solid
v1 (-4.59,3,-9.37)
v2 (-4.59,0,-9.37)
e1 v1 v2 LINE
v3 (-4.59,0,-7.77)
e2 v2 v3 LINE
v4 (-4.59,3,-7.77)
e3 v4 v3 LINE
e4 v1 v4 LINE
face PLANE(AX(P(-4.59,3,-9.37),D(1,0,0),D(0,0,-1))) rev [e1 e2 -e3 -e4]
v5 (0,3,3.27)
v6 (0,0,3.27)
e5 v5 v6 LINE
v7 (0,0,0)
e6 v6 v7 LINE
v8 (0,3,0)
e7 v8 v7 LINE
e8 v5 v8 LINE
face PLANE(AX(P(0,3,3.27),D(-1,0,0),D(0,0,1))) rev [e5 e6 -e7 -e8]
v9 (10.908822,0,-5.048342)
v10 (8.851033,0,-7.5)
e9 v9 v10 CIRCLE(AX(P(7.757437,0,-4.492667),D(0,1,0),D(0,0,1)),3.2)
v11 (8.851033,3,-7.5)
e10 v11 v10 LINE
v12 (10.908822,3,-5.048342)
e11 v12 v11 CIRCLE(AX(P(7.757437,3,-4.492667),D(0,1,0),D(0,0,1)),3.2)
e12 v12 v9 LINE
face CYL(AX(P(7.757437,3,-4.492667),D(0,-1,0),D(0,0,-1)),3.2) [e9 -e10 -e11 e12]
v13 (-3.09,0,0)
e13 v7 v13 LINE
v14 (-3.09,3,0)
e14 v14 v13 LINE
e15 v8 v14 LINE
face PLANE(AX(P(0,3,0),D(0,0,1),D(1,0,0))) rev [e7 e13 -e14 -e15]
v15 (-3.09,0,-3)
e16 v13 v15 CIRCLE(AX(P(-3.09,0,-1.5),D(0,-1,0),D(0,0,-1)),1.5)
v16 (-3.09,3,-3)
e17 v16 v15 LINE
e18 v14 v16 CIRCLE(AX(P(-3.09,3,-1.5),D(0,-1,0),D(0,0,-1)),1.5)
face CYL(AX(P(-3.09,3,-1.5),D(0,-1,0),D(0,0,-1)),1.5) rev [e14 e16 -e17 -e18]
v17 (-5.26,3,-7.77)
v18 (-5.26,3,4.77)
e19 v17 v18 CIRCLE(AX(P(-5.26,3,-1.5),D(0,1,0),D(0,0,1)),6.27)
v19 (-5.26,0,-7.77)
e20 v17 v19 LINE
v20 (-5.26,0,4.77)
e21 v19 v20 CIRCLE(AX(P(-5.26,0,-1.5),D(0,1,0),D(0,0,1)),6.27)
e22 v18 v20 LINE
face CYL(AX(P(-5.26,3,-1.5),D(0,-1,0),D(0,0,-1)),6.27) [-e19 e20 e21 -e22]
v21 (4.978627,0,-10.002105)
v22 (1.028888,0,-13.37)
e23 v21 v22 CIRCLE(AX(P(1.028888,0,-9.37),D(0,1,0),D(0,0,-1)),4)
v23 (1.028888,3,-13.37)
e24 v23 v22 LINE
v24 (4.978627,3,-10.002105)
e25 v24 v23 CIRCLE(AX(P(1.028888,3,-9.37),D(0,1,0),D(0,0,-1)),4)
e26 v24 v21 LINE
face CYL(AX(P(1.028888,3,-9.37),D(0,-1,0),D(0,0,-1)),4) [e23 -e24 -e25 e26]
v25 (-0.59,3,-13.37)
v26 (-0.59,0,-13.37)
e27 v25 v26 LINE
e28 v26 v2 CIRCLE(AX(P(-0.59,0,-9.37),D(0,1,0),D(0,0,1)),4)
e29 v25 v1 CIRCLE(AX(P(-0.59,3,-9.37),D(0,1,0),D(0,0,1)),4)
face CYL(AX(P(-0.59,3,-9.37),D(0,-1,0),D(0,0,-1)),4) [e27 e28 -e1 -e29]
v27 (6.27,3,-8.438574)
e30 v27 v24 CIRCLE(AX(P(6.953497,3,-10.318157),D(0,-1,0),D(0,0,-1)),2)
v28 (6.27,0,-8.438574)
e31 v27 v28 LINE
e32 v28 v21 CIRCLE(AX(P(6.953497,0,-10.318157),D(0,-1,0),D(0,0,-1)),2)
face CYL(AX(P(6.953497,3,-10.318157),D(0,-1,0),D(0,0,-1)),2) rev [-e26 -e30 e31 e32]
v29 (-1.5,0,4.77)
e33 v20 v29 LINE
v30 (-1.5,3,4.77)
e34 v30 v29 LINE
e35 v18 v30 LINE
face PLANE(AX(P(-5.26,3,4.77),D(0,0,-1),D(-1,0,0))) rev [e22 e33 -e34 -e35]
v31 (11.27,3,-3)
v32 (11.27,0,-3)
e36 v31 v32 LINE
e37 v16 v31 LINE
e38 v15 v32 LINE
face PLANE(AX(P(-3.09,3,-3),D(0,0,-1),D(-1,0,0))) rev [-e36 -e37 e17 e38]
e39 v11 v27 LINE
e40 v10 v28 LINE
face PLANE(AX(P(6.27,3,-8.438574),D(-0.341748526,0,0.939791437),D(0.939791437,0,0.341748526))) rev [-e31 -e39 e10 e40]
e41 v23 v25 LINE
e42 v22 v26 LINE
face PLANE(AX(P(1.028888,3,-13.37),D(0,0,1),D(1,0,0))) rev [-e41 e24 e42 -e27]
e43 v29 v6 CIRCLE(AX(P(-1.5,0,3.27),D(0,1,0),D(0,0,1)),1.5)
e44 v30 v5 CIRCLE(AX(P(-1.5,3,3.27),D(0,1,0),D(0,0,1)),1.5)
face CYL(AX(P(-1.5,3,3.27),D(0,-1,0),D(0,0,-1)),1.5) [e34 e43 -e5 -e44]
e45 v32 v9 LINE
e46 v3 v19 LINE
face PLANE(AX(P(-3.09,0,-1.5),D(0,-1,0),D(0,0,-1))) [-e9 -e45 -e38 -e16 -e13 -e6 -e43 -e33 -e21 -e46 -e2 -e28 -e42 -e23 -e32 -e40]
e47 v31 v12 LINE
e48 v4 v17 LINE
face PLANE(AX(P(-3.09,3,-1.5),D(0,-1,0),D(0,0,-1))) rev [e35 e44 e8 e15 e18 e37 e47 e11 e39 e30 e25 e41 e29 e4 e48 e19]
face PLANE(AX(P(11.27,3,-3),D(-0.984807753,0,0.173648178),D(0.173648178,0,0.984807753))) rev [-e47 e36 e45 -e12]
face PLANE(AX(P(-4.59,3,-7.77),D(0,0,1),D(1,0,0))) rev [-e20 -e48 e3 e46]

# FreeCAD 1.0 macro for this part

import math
import FreeCAD as App
import Part
import Sketcher
from FreeCAD import Vector
Q = App.Units.Quantity

doc = App.newDocument("Part")
body = doc.addObject("PartDesign::Body", "Body")

sketch1 = body.newObject("Sketcher::SketchObject", "Sketch")
sketch1.AttachmentSupport = (doc.getObject("XZ_Plane"), [""])
sketch1.MapMode = "FlatFace"
sketch1.addGeometry([
    Part.LineSegment(Vector(0, 0, 0), Vector(-3.1, 0, 0)),
    Part.ArcOfCircle(Part.Circle(Vector(-3.1, -1.5, 0), Vector(0, 0, 1), 1.5), math.radians(90), math.radians(270)),
    Part.LineSegment(Vector(-3.1, -3, 0), Vector(11.3, -3, 0)),
    Part.LineSegment(Vector(11.3, -3, 0), Vector(10.9, -5, 0)),
    Part.ArcOfCircle(Part.Circle(Vector(7.8, -4.5, 0), Vector(0, 0, 1), 3.2), math.radians(-70), math.radians(-10)),
    Part.LineSegment(Vector(8.9, -7.5, 0), Vector(6.3, -8.4, 0)),
    Part.ArcOfCircle(Part.Circle(Vector(7, -10.3, 0), Vector(0, 0, 1), 2), math.radians(110), math.radians(171)),
    Part.ArcOfCircle(Part.Circle(Vector(1, -9.4, 0), Vector(0, 0, 1), 4), math.radians(-90), math.radians(-9)),
    Part.LineSegment(Vector(1, -13.4, 0), Vector(-0.6, -13.4, 0)),
    Part.ArcOfCircle(Part.Circle(Vector(-0.6, -9.4, 0), Vector(0, 0, 1), 4), math.radians(180), math.radians(270)),
    Part.LineSegment(Vector(-4.6, -9.4, 0), Vector(-4.6, -7.8, 0)),
    Part.LineSegment(Vector(-4.6, -7.8, 0), Vector(-5.3, -7.8, 0)),
    Part.ArcOfCircle(Part.Circle(Vector(-5.3, -1.5, 0), Vector(0, 0, 1), 6.3), math.radians(90), math.radians(270)),
    Part.LineSegment(Vector(-5.3, 4.8, 0), Vector(-1.5, 4.8, 0)),
    Part.ArcOfCircle(Part.Circle(Vector(-1.5, 3.3, 0), Vector(0, 0, 1), 1.5), math.radians(0), math.radians(90)),
    Part.LineSegment(Vector(0, 3.3, 0), Vector(0, 0, 0)),
], False)
sketch1.addConstraint([
    Sketcher.Constraint("Tangent", 0, 2, 1, 1),
    Sketcher.Constraint("Tangent", 1, 2, 2, 1),
    Sketcher.Constraint("Coincident", 2, 2, 3, 1),
    Sketcher.Constraint("Tangent", 3, 2, 4, 2),
    Sketcher.Constraint("Tangent", 4, 1, 5, 1),
    Sketcher.Constraint("Tangent", 5, 2, 6, 1),
    Sketcher.Constraint("Tangent", 6, 2, 7, 2),
    Sketcher.Constraint("Tangent", 7, 1, 8, 1),
    Sketcher.Constraint("Tangent", 8, 2, 9, 2),
    Sketcher.Constraint("Tangent", 9, 1, 10, 1),
    Sketcher.Constraint("Coincident", 10, 2, 11, 1),
    Sketcher.Constraint("Tangent", 11, 2, 12, 2),
    Sketcher.Constraint("Tangent", 12, 1, 13, 1),
    Sketcher.Constraint("Tangent", 13, 2, 14, 2),
    Sketcher.Constraint("Tangent", 14, 1, 15, 1),
    Sketcher.Constraint("Coincident", 15, 2, 0, 1),
    Sketcher.Constraint("Horizontal", 0),
    Sketcher.Constraint("Horizontal", 2),
    Sketcher.Constraint("Horizontal", 8),
    Sketcher.Constraint("Vertical", 10),
    Sketcher.Constraint("Horizontal", 11),
    Sketcher.Constraint("Horizontal", 13),
    Sketcher.Constraint("Vertical", 15),
    Sketcher.Constraint("Coincident", 15, 2, -1, 1),
    Sketcher.Constraint("Equal", 7, 9),
    Sketcher.Constraint("Equal", 1, 14),
    Sketcher.Constraint("Horizontal", 1, 3, 12, 3),
    Sketcher.Constraint("Radius", 6, 2.0),
    Sketcher.Constraint("Radius", 7, 4.0),
    Sketcher.Constraint("Radius", 1, 1.5),
    Sketcher.Constraint("Radius", 4, 3.2),
    Sketcher.Constraint("Angle", 3, Q("-100 deg")),
    Sketcher.Constraint("Radius", 12, 6.27),
    Sketcher.Constraint("DistanceY", 10, 1, 10, 2, 1.6),
    Sketcher.Constraint("DistanceX", 0, 2, 0, 1, 3.09),
    Sketcher.Constraint("DistanceX", 2, 1, 2, 2, 14.36),
    Sketcher.Constraint("DistanceX", 11, 2, 11, 1, 0.67),
    Sketcher.Constraint("DistanceX", 13, 1, 13, 2, 3.76),
    Sketcher.Constraint("DistanceY", 4, 1, -1, 1, 7.5),
    Sketcher.Constraint("DistanceX", -1, 1, 5, 2, 6.27),
    Sketcher.Constraint("Distance", 3, 2.079941),
])
pad1 = body.newObject("PartDesign::Pad", "Pad")
pad1.Profile = sketch1
pad1.Length = 3
pad1.Reversed = True

doc.recompute()
